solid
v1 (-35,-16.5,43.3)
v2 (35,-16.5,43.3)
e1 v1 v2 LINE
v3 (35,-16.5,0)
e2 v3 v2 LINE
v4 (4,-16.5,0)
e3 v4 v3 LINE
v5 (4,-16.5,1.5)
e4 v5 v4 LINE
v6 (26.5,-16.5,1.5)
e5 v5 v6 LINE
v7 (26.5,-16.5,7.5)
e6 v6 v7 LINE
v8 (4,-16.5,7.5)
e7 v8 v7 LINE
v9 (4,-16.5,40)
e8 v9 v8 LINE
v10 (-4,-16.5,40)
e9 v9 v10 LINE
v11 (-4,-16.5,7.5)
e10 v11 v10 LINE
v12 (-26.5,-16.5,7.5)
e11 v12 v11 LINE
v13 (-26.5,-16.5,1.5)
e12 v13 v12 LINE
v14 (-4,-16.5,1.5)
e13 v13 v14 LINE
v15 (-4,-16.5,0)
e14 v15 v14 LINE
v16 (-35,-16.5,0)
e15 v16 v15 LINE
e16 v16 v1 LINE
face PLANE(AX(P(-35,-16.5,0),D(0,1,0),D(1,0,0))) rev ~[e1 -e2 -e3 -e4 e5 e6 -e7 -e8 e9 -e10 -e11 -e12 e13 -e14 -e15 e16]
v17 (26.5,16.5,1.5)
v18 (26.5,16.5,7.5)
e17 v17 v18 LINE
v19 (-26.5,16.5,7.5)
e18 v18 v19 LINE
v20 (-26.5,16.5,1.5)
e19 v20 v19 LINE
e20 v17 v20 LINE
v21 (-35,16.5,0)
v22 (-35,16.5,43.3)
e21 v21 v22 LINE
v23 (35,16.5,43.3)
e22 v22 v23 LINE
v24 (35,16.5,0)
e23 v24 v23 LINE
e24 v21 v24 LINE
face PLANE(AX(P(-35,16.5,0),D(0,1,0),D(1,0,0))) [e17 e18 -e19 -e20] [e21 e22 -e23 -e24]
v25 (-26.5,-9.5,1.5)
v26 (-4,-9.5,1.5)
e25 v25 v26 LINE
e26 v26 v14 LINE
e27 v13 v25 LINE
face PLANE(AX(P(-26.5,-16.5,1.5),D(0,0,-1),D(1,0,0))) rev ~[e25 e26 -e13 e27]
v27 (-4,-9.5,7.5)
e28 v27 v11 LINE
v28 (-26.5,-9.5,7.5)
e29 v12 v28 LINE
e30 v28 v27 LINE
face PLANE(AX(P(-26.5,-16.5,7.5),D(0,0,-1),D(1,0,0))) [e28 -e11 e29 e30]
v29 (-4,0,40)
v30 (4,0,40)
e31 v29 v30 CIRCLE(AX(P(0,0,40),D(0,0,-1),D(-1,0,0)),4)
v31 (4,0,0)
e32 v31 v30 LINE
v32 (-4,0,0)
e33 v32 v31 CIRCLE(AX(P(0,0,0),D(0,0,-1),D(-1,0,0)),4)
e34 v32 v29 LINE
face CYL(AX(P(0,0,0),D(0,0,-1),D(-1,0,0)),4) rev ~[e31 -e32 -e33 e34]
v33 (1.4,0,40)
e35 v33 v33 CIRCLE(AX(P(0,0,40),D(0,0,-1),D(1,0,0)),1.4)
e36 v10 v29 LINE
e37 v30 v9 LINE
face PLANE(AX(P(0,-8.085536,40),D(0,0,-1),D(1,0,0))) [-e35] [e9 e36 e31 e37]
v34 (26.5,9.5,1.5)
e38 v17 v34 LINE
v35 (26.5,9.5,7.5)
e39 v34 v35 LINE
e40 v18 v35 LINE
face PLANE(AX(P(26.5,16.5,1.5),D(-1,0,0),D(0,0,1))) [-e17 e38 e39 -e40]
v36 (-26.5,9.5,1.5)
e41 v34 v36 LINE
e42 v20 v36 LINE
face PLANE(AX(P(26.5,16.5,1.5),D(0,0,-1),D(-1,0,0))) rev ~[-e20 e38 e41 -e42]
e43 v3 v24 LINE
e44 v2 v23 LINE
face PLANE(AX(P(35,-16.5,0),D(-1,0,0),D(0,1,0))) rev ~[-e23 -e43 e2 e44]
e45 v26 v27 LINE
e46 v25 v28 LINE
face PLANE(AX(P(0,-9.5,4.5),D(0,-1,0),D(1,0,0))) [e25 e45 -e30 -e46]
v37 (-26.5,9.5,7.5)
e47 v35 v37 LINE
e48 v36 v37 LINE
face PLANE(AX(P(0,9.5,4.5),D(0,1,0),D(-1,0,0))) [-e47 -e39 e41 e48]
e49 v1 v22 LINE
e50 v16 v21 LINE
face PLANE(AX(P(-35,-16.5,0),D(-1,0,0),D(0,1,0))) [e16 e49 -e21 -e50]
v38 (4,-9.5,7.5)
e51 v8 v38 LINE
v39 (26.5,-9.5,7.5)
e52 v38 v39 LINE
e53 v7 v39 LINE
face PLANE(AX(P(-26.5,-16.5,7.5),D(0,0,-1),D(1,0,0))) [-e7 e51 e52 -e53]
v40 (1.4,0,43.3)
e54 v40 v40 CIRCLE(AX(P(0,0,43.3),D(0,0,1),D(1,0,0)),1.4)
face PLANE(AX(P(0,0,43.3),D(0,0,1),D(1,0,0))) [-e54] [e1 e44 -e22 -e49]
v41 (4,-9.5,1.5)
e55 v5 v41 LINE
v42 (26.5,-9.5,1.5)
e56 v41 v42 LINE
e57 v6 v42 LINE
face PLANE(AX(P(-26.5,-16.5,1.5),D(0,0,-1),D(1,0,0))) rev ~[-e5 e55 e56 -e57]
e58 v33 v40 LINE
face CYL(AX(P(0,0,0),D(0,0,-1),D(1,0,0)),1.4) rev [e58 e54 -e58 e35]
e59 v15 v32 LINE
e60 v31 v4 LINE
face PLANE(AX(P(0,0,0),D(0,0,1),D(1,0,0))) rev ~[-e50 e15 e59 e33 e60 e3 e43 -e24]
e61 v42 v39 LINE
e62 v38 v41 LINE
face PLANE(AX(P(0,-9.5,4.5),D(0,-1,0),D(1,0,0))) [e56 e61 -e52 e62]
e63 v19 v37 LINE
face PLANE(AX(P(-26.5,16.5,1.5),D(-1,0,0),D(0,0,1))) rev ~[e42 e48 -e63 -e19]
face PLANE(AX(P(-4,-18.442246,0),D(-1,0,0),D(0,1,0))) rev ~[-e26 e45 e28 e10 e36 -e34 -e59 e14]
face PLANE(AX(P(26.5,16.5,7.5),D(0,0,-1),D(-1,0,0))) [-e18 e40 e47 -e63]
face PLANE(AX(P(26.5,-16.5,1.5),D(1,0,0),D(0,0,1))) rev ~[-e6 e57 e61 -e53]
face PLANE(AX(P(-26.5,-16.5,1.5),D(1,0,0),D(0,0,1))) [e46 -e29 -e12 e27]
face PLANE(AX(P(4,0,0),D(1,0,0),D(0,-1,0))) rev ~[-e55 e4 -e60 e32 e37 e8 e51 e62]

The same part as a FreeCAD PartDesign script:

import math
import FreeCAD as App
import Part
import Sketcher
from FreeCAD import Vector


def add_polygon(sketch, points):
    """Adds a closed chain of lines whose ends are joined by coincident constraints."""
    first, n = sketch.GeometryCount, len(points)
    for a, b in zip(points, points[1:] + points[:1]):
        sketch.addGeometry(Part.LineSegment(App.Vector(*a, 0), App.Vector(*b, 0)), False)
    for i in range(n):
        sketch.addConstraint(Sketcher.Constraint("Coincident", first + i, 2, first + (i + 1) % n, 1))

doc = App.newDocument("Part")
params = doc.addObject("Spreadsheet::Sheet", "Params")
for row, (alias, value) in enumerate([
    ("sketch1_diameter", "2.8 mm"),
    ("sketch1_width", "70 mm"),
    ("sketch1_height", "33 mm"),
    ("pad1_length", "43.3 mm"),
    ("sketch2_radius", "4 mm"),
    ("pocket1_length", "40 mm"),
    ("sketch3_width", "53 mm"),
    ("sketch3_height", "6 mm"),
    ("pocket2_length", "7 mm"),
    ("sketch4_width", "53 mm"),
    ("sketch4_height", "6 mm"),
    ("pocket3_length", "7 mm"),
], start=1):
    params.set(f"A{row}", alias)
    params.set(f"B{row}", "=" + value)
    params.setAlias(f"B{row}", alias)

body = doc.addObject("PartDesign::Body", "Body")

# Sketch on XY plane
sketch1 = body.newObject("Sketcher::SketchObject", "Sketch")
sketch1.AttachmentSupport = (doc.getObject("XY_Plane"), [""])
sketch1.MapMode = "FlatFace"
add_polygon(sketch1, [(-35, 16.5), (-35, -16.5), (35, -16.5), (35, 16.5)])  # lines 0-3
sketch1.addGeometry(Part.Circle(Vector(0, 0, 0), Vector(0, 0, 1), 1.4), False)  # 4
sketch1.addConstraint(Sketcher.Constraint("Vertical", 0))
sketch1.addConstraint(Sketcher.Constraint("Horizontal", 1))
sketch1.addConstraint(Sketcher.Constraint("Vertical", 2))
sketch1.addConstraint(Sketcher.Constraint("Horizontal", 3))
sketch1.addConstraint(Sketcher.Constraint("Coincident", 4, 3, -1, 1))
sketch1.addConstraint(Sketcher.Constraint("Symmetric", 0, 2, 2, 2, -1, 1))
sketch1.addConstraint(Sketcher.Constraint("Diameter", 4, 2.8))
sketch1.addConstraint(Sketcher.Constraint("DistanceX", 1, 1, 1, 2, 70.0))
sketch1.addConstraint(Sketcher.Constraint("DistanceY", 0, 2, 0, 1, 33.0))
sketch1.setExpression("Constraints[10]", "Params.sketch1_diameter")
sketch1.setExpression("Constraints[11]", "Params.sketch1_width")
sketch1.setExpression("Constraints[12]", "Params.sketch1_height")
pad1 = body.newObject("PartDesign::Pad", "Pad")
pad1.Profile = sketch1
pad1.setExpression("Length", "Params.pad1_length")

# Sketch on XY plane
sketch2 = body.newObject("Sketcher::SketchObject", "Sketch001")
sketch2.AttachmentSupport = (doc.getObject("XY_Plane"), [""])
sketch2.MapMode = "FlatFace"
sketch2.addGeometry(Part.LineSegment(Vector(4, -18.4, 0), Vector(-4, -18.4, 0)), False)
sketch2.addGeometry(Part.LineSegment(Vector(-4, -18.4, 0), Vector(-4, 0, 0)), False)
sketch2.addGeometry(Part.ArcOfCircle(Part.Circle(Vector(0, 0, 0), Vector(0, 0, 1), 4), math.radians(0), math.radians(180)), False)
sketch2.addGeometry(Part.LineSegment(Vector(4, 0, 0), Vector(4, -18.4, 0)), False)
sketch2.addConstraint(Sketcher.Constraint("Coincident", 0, 2, 1, 1))
sketch2.addConstraint(Sketcher.Constraint("Tangent", 1, 2, 2, 2))
sketch2.addConstraint(Sketcher.Constraint("Tangent", 2, 1, 3, 1))
sketch2.addConstraint(Sketcher.Constraint("Coincident", 3, 2, 0, 1))
sketch2.addConstraint(Sketcher.Constraint("Horizontal", 0))
sketch2.addConstraint(Sketcher.Constraint("Vertical", 1))
sketch2.addConstraint(Sketcher.Constraint("Vertical", 3))
sketch2.addConstraint(Sketcher.Constraint("Coincident", 2, 3, -1, 1))
sketch2.addConstraint(Sketcher.Constraint("Radius", 2, 4.0))
sketch2.addConstraint(Sketcher.Constraint("DistanceY", 1, 1, 1, 2, 18.442246))
sketch2.setExpression("Constraints[8]", "Params.sketch2_radius")
pocket1 = body.newObject("PartDesign::Pocket", "Pocket")
pocket1.Profile = sketch2
pocket1.setExpression("Length", "Params.pocket1_length")
pocket1.Reversed = True

# Sketch on XZ plane
sketch3 = body.newObject("Sketcher::SketchObject", "Sketch002")
sketch3.AttachmentSupport = (doc.getObject("XZ_Plane"), [""])
sketch3.MapMode = "FlatFace"
sketch3.AttachmentOffset = App.Placement(Vector(0, 0, 16.5), App.Rotation())
add_polygon(sketch3, [(-26, 8), (-26, 2), (26, 2), (26, 8)])  # lines 0-3
sketch3.addConstraint(Sketcher.Constraint("Vertical", 0))
sketch3.addConstraint(Sketcher.Constraint("Horizontal", 1))
sketch3.addConstraint(Sketcher.Constraint("Vertical", 2))
sketch3.addConstraint(Sketcher.Constraint("Horizontal", 3))
sketch3.addConstraint(Sketcher.Constraint("DistanceX", 1, 1, 1, 2, 53.0))
sketch3.addConstraint(Sketcher.Constraint("DistanceY", 0, 2, 0, 1, 6.0))
sketch3.addConstraint(Sketcher.Constraint("DistanceX", 0, 2, -1, 1, 26.5))
sketch3.addConstraint(Sketcher.Constraint("DistanceY", -1, 1, 0, 2, 1.5))
sketch3.setExpression("Constraints[8]", "Params.sketch3_width")
sketch3.setExpression("Constraints[9]", "Params.sketch3_height")
pocket2 = body.newObject("PartDesign::Pocket", "Pocket001")
pocket2.Profile = sketch3
pocket2.setExpression("Length", "Params.pocket2_length")

# Sketch on XZ plane
sketch4 = body.newObject("Sketcher::SketchObject", "Sketch003")
sketch4.AttachmentSupport = (doc.getObject("XZ_Plane"), [""])
sketch4.MapMode = "FlatFace"
sketch4.AttachmentOffset = App.Placement(Vector(0, 0, -16.5), App.Rotation())
add_polygon(sketch4, [(26, 8), (26, 2), (-26, 2), (-26, 8)])  # lines 0-3
sketch4.addConstraint(Sketcher.Constraint("Vertical", 0))
sketch4.addConstraint(Sketcher.Constraint("Horizontal", 1))
sketch4.addConstraint(Sketcher.Constraint("Vertical", 2))
sketch4.addConstraint(Sketcher.Constraint("Horizontal", 3))
sketch4.addConstraint(Sketcher.Constraint("DistanceX", 1, 2, 1, 1, 53.0))
sketch4.addConstraint(Sketcher.Constraint("DistanceY", 0, 2, 0, 1, 6.0))
sketch4.addConstraint(Sketcher.Constraint("DistanceX", -1, 1, 0, 2, 26.5))
sketch4.addConstraint(Sketcher.Constraint("DistanceY", -1, 1, 0, 2, 1.5))
sketch4.setExpression("Constraints[8]", "Params.sketch4_width")
sketch4.setExpression("Constraints[9]", "Params.sketch4_height")
pocket3 = body.newObject("PartDesign::Pocket", "Pocket002")
pocket3.Profile = sketch4
pocket3.setExpression("Length", "Params.pocket3_length")
pocket3.Reversed = True

doc.recompute()
